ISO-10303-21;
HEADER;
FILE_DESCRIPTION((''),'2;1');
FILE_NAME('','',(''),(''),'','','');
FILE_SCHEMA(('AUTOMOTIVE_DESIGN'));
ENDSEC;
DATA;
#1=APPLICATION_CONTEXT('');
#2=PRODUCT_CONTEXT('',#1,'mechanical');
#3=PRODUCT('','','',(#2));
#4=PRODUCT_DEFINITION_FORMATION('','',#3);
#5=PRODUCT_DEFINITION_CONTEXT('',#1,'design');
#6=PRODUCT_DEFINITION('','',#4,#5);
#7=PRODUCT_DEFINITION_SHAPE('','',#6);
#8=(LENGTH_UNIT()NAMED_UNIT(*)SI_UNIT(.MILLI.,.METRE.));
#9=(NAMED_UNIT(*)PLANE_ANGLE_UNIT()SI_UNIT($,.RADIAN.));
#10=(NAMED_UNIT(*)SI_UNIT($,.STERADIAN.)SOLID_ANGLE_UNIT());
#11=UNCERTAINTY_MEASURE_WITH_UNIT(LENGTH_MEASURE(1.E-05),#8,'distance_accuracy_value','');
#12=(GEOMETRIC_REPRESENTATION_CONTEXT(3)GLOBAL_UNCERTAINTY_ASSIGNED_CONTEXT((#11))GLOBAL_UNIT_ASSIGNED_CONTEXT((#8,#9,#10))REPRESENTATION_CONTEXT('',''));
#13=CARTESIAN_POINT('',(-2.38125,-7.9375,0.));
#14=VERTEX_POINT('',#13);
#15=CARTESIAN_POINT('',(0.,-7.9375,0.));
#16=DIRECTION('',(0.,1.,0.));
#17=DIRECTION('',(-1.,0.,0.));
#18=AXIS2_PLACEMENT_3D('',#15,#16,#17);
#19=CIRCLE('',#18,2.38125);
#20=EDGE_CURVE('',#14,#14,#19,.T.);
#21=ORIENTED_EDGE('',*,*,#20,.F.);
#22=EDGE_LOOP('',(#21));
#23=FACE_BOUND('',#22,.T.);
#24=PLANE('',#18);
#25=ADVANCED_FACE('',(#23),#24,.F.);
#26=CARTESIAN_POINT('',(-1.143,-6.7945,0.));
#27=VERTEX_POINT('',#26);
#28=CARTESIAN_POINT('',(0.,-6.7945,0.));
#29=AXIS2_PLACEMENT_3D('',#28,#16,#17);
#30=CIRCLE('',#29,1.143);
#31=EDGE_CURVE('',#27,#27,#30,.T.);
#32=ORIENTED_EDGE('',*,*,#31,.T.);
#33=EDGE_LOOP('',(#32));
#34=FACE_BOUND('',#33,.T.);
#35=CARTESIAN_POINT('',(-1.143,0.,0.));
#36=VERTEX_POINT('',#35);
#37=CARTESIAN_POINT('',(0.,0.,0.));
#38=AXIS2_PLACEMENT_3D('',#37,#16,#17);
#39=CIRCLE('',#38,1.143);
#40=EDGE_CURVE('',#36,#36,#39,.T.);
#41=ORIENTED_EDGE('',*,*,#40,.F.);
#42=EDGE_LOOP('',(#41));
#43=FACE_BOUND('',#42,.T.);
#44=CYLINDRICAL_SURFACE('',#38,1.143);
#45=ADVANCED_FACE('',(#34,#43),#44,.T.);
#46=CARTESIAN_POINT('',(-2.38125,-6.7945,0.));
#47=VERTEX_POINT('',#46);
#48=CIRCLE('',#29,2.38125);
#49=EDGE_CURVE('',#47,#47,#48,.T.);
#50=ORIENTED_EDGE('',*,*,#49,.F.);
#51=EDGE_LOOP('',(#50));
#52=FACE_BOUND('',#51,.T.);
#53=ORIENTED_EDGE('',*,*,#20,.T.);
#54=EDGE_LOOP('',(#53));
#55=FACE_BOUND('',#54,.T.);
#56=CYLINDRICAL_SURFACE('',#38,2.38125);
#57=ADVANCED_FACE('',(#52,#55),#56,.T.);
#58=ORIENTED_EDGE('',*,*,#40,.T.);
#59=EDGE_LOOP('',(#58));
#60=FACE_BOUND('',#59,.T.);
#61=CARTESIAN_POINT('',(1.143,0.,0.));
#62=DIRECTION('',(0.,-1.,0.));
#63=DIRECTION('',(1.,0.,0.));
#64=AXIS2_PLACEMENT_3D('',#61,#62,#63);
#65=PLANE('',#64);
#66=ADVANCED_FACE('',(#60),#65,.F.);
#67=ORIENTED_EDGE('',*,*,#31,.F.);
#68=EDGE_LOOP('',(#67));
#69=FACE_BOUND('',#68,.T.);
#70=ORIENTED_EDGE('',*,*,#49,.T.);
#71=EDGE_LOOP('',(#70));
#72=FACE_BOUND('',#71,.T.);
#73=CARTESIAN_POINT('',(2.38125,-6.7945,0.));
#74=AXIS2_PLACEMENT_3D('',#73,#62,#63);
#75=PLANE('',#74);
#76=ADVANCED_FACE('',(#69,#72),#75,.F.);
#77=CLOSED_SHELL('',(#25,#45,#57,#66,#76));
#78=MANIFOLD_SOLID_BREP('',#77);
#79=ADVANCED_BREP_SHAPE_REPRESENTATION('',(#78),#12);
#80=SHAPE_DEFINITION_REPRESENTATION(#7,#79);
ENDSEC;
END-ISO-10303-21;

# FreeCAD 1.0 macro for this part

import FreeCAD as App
import Part
import Sketcher
from FreeCAD import Vector
Q = App.Units.Quantity


def add_polygon(sketch, points):
    """Adds a closed chain of lines whose ends are joined by coincident constraints."""
    first, n = sketch.GeometryCount, len(points)
    for a, b in zip(points, points[1:] + points[:1]):
        sketch.addGeometry(Part.LineSegment(App.Vector(*a, 0), App.Vector(*b, 0)), False)
    for i in range(n):
        sketch.addConstraint(Sketcher.Constraint("Coincident", first + i, 2, first + (i + 1) % n, 1))

doc = App.newDocument("Part")
body = doc.addObject("PartDesign::Body", "Body")

# Sketch on XY plane
sketch1 = doc.addObject("Sketcher::SketchObject", "Sketch")
body.addObject(sketch1)
sketch1.AttachmentSupport = (doc.XY_Plane, [""])
sketch1.MapMode = "FlatFace"
add_polygon(sketch1, [(0, 0), (0, -7.9), (2.4, -7.9), (2.4, -6.8), (1.1, -6.8), (1.1, 0)])  # lines 0-5
sketch1.addConstraint([
    Sketcher.Constraint("Vertical", 0),
    Sketcher.Constraint("Horizontal", 1),
    Sketcher.Constraint("Vertical", 2),
    Sketcher.Constraint("Horizontal", 3),
    Sketcher.Constraint("Vertical", 4),
    Sketcher.Constraint("Horizontal", 5),
    Sketcher.Constraint("Coincident", 5, 2, -1, 1),
    Sketcher.Constraint("Equal", 5, 2),
    Sketcher.Constraint("DistanceX", 1, 1, 1, 2, Q("0.09375 in")),
    Sketcher.Constraint("DistanceX", 5, 2, 5, 1, Q("0.045 in")),
    Sketcher.Constraint("DistanceY", 0, 2, 0, 1, Q("0.3125 in")),
])
revolution = doc.addObject("PartDesign::Revolution", "Revolution")
body.addObject(revolution)
revolution.Profile = sketch1
revolution.ReferenceAxis = (sketch1, ["V_Axis"])
revolution.Angle = 360

doc.recompute()
